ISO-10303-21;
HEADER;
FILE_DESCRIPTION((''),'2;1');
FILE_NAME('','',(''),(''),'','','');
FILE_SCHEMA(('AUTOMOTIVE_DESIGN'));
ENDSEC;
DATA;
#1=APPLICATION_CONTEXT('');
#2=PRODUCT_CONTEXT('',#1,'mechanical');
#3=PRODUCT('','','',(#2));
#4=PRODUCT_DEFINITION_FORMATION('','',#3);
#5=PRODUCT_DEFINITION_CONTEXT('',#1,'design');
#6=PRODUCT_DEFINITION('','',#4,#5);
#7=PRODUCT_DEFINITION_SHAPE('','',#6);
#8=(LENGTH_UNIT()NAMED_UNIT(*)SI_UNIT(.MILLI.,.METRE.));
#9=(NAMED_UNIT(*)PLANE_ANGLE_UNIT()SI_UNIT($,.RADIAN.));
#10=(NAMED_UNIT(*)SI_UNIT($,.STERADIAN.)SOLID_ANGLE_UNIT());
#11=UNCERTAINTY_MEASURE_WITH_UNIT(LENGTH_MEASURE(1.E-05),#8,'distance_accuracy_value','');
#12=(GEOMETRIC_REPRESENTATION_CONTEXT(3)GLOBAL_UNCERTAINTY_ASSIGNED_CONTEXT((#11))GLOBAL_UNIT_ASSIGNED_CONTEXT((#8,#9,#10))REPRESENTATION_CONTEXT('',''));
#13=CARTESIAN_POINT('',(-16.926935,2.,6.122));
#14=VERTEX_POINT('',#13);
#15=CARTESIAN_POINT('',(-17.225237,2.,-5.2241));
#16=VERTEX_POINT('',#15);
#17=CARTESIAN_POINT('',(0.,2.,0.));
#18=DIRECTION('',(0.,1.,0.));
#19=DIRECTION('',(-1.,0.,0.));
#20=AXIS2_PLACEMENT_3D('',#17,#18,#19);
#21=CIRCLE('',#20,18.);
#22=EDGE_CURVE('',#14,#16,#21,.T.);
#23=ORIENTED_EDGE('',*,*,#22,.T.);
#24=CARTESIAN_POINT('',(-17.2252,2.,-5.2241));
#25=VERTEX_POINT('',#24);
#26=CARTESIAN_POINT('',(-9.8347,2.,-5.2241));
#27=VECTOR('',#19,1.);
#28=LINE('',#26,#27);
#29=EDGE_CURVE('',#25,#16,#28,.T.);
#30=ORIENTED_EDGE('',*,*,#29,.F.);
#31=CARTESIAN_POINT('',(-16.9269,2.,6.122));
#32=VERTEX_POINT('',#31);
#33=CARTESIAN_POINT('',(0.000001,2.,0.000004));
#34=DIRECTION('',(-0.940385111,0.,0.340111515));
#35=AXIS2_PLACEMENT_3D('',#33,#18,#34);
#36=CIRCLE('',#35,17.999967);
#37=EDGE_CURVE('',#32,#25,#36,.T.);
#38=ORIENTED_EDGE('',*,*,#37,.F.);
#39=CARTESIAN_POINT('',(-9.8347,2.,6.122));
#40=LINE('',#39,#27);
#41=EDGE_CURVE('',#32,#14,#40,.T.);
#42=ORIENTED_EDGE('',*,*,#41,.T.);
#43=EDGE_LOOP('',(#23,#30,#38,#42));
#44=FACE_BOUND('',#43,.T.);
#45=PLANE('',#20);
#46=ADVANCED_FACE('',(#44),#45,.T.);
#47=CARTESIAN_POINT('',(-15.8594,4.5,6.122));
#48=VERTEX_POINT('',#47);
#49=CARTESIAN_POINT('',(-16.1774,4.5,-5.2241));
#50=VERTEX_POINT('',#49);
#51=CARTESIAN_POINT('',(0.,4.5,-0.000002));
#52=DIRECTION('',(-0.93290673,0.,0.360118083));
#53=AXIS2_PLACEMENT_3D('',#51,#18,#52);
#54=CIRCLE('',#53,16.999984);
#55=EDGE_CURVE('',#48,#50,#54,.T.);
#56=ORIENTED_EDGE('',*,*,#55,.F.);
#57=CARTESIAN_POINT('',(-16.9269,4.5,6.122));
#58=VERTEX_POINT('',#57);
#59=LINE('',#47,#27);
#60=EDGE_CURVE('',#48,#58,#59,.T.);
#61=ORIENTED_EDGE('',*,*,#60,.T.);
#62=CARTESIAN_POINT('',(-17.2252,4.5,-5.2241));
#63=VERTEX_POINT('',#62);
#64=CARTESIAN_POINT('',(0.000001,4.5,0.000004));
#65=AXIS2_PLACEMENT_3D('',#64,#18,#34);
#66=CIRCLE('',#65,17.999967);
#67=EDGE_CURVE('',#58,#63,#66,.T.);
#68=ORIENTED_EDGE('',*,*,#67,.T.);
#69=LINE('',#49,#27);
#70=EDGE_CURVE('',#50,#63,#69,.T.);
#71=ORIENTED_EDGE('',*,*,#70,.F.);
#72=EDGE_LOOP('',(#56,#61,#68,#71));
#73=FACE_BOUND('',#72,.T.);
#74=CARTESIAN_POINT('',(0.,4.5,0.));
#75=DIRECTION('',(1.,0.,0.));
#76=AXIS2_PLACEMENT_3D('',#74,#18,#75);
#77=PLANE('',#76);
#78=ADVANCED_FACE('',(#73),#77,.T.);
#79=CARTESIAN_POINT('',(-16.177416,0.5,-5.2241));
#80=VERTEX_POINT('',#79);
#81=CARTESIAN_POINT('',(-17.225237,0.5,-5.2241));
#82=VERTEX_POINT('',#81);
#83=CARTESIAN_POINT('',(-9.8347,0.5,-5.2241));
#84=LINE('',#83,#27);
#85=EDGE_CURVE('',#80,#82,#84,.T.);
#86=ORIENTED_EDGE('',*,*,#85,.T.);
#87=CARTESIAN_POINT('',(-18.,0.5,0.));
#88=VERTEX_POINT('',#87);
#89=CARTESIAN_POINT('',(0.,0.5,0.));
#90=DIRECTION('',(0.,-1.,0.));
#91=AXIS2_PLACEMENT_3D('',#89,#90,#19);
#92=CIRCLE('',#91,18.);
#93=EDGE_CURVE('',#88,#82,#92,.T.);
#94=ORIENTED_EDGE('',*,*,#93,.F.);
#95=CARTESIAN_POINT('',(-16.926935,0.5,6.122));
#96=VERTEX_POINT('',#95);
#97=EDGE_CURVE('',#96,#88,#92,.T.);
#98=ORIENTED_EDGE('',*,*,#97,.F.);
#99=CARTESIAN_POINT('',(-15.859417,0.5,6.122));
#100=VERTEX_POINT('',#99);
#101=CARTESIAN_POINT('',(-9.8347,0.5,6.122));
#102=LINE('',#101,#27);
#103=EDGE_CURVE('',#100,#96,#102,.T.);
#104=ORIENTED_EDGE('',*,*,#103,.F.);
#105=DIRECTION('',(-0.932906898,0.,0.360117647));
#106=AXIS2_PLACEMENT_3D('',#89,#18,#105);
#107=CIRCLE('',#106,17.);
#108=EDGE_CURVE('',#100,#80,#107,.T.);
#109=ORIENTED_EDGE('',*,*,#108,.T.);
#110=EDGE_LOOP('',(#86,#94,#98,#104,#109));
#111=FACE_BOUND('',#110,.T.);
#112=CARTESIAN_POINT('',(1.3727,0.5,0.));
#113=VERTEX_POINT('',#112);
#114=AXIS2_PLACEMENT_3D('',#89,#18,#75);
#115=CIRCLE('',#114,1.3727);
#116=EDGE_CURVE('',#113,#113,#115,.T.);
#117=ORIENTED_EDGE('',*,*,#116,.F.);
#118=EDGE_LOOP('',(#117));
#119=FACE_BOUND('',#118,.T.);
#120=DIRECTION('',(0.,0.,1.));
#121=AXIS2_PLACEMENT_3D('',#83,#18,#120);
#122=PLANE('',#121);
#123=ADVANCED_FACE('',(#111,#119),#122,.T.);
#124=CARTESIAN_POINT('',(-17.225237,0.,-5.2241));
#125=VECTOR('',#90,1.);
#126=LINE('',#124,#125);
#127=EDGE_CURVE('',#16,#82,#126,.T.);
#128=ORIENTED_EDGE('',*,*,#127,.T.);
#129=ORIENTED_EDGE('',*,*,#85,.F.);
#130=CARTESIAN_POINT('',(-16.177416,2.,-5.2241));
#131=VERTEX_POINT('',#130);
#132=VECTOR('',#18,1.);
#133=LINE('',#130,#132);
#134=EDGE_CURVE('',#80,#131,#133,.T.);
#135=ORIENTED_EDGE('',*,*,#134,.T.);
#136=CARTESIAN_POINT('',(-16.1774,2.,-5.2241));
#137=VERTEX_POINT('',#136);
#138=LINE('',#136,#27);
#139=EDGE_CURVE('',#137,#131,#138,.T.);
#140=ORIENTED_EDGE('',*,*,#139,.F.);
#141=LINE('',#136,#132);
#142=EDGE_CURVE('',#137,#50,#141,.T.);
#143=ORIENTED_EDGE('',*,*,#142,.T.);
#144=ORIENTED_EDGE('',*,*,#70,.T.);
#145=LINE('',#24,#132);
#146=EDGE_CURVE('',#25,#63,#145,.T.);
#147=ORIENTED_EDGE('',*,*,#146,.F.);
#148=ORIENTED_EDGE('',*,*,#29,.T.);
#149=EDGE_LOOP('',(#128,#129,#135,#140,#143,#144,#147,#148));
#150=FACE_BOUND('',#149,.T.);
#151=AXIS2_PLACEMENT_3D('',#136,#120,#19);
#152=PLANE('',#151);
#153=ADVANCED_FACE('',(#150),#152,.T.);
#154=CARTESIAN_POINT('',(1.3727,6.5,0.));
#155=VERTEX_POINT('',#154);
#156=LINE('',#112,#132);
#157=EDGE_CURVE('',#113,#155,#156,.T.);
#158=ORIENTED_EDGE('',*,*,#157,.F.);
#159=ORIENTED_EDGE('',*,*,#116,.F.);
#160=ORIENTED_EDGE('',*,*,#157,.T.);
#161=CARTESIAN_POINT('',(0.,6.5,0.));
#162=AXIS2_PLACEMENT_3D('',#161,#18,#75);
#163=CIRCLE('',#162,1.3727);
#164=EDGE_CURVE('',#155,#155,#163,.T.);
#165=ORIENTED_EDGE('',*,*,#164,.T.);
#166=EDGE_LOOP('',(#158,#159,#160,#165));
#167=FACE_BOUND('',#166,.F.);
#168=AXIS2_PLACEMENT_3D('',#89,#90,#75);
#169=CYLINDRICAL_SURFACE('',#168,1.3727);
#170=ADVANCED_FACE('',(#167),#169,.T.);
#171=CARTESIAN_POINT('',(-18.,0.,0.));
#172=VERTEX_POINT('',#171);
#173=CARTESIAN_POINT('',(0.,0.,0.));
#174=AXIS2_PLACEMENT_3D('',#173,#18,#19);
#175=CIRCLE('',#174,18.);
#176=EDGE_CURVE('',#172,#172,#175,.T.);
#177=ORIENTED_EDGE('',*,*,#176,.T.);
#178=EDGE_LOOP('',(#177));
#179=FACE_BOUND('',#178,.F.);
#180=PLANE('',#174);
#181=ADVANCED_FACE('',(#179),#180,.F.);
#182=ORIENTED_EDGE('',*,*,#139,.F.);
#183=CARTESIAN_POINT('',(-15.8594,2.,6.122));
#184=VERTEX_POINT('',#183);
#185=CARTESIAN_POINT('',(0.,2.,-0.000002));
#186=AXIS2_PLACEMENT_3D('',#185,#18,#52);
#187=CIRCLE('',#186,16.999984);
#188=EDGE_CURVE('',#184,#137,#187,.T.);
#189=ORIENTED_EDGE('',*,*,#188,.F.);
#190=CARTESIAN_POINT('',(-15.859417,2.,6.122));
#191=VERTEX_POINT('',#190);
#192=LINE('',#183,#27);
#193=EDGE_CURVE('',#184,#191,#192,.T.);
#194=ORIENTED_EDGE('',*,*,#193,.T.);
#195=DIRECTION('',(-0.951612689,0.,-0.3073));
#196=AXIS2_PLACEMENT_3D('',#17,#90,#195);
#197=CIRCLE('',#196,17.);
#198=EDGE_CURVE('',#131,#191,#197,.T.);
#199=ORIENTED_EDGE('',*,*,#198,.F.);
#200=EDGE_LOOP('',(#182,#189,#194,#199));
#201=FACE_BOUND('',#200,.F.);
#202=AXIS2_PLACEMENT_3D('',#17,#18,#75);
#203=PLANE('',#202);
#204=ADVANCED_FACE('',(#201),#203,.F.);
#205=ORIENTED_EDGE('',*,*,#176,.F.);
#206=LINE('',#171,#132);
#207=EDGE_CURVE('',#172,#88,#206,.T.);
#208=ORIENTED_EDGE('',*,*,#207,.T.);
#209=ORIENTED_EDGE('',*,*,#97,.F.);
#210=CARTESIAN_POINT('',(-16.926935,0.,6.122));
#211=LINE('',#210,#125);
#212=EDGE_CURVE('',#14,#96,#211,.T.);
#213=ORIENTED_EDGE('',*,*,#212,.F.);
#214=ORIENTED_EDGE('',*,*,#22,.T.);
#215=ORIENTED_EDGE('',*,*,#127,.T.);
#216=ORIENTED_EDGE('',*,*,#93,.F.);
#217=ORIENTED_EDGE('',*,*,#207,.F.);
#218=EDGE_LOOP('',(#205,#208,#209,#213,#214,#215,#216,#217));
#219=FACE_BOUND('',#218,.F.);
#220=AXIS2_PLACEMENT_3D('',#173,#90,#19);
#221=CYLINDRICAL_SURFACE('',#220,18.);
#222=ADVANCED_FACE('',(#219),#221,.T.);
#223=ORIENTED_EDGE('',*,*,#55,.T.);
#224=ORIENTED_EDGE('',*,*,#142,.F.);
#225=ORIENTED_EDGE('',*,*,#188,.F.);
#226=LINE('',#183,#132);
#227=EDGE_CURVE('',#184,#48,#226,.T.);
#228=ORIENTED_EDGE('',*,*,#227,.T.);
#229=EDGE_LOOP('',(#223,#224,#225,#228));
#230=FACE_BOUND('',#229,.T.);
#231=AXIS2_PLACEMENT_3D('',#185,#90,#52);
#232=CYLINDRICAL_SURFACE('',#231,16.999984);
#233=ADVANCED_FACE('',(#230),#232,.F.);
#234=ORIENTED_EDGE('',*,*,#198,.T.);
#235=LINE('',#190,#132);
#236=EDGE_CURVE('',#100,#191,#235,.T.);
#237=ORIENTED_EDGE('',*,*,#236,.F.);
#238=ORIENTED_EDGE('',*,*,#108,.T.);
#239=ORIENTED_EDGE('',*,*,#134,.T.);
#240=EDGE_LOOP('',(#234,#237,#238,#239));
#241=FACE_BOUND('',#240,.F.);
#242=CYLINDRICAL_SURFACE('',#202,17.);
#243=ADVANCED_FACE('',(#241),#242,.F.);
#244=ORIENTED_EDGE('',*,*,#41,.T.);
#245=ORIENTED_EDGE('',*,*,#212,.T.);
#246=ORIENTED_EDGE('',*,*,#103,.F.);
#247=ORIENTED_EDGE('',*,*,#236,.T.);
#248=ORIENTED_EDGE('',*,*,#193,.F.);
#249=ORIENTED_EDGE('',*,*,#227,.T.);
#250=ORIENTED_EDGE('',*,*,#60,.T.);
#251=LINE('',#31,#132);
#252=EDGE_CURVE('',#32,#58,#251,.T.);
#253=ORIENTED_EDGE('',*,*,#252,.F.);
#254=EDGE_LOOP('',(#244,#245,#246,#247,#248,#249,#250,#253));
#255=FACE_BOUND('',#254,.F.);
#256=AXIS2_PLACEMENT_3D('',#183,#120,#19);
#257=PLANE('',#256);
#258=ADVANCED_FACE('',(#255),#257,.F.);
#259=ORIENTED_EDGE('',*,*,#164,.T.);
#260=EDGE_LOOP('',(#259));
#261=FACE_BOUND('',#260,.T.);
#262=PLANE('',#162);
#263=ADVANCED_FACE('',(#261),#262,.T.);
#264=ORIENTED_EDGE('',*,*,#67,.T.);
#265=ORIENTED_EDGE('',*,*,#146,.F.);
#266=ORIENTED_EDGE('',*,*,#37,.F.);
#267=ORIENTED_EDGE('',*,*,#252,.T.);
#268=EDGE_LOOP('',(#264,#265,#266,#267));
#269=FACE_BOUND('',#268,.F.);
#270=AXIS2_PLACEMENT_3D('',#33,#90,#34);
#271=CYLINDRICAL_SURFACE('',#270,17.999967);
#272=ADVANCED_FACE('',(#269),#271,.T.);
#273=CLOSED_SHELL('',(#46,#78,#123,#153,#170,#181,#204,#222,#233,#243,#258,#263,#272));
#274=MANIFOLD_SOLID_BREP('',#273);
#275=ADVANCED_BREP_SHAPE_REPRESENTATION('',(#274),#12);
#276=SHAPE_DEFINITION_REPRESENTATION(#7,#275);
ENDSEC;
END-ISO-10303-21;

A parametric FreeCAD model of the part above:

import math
import FreeCAD as App
import Part
import Sketcher

V = App.Vector


def add_polygon(sketch, points):
    """Adds a closed chain of lines whose ends are joined by coincident constraints."""
    first, n = sketch.GeometryCount, len(points)
    for a, b in zip(points, points[1:] + points[:1]):
        sketch.addGeometry(Part.LineSegment(App.Vector(*a, 0), App.Vector(*b, 0)), False)
    for i in range(n):
        sketch.addConstraint(Sketcher.Constraint("Coincident", first + i, 2, first + (i + 1) % n, 1))

doc = App.newDocument("Part")
params = doc.addObject("Spreadsheet::Sheet", "Params")
for row, (alias, value) in enumerate([
    ("sketch1_diameter", "36 mm"),
    ("pad1_length", "2 mm"),
    ("sketch2_diameter", "34 mm"),
    ("pocket1_length", "1.5 mm"),
    ("sketch3_width", "1.5 mm"),
    ("pocket2_length", "15 mm"),
    ("sketch4_radius", "18 mm"),
    ("sketch4_radius2", "17 mm"),
    ("pad2_length", "2.5 mm"),
    ("pad3_length", "6 mm"),
], start=1):
    params.set(f"A{row}", alias)
    params.set(f"B{row}", "=" + value)
    params.setAlias(f"B{row}", alias)

body = doc.addObject("PartDesign::Body", "Body")

# Sketch on XZ plane
sketch1 = doc.addObject("Sketcher::SketchObject", "Sketch")
body.addObject(sketch1)
sketch1.AttachmentSupport = (doc.XZ_Plane, [""])
sketch1.MapMode = "FlatFace"
sketch1.addGeometry(Part.Circle(V(0, 0, 0), V(0, 0, 1), 18), False)
sketch1.addConstraint(Sketcher.Constraint("Coincident", 0, 3, -1, 1))
sketch1.addConstraint(Sketcher.Constraint("Diameter", 0, 36.0))
sketch1.setExpression("Constraints[1]", "Params.sketch1_diameter")
pad1 = doc.addObject("PartDesign::Pad", "Pad")
body.addObject(pad1)
pad1.Profile = sketch1
pad1.setExpression("Length", "Params.pad1_length")
pad1.Reversed = True

# Sketch on XZ plane
sketch2 = doc.addObject("Sketcher::SketchObject", "Sketch001")
body.addObject(sketch2)
sketch2.AttachmentSupport = (doc.XZ_Plane, [""])
sketch2.MapMode = "FlatFace"
sketch2.AttachmentOffset = App.Placement(V(0, 0, -2), App.Rotation())
sketch2.addGeometry(Part.Circle(V(0, 0, 0), V(0, 0, 1), 17), False)
sketch2.addConstraint(Sketcher.Constraint("Coincident", 0, 3, -1, 1))
sketch2.addConstraint(Sketcher.Constraint("Diameter", 0, 34.0))
sketch2.setExpression("Constraints[1]", "Params.sketch2_diameter")
pocket1 = doc.addObject("PartDesign::Pocket", "Pocket")
body.addObject(pocket1)
pocket1.Profile = sketch2
pocket1.setExpression("Length", "Params.pocket1_length")
pocket1.Reversed = True

# Sketch on YZ plane
sketch3 = doc.addObject("Sketcher::SketchObject", "Sketch002")
body.addObject(sketch3)
sketch3.AttachmentSupport = (doc.YZ_Plane, [""])
sketch3.MapMode = "FlatFace"
sketch3.AttachmentOffset = App.Placement(V(0, 0, -9.8347), App.Rotation())
add_polygon(sketch3, [(2, -5.2), (0.5, -5.2), (0.5, 6.1), (2, 6.1)])  # lines 0-3
sketch3.addConstraint(Sketcher.Constraint("Horizontal", 0))
sketch3.addConstraint(Sketcher.Constraint("Vertical", 1))
sketch3.addConstraint(Sketcher.Constraint("Horizontal", 2))
sketch3.addConstraint(Sketcher.Constraint("Vertical", 3))
sketch3.addConstraint(Sketcher.Constraint("DistanceX", 0, 2, 0, 1, 1.5))
sketch3.addConstraint(Sketcher.Constraint("DistanceX", -1, 1, 2, 2, 2.0))
sketch3.addConstraint(Sketcher.Constraint("DistanceY", 1, 1, 1, 2, 11.346))
sketch3.addConstraint(Sketcher.Constraint("DistanceY", 0, 2, -1, 1, 5.224))
sketch3.setExpression("Constraints[8]", "Params.sketch3_width")
pocket2 = doc.addObject("PartDesign::Pocket", "Pocket001")
body.addObject(pocket2)
pocket2.Profile = sketch3
pocket2.setExpression("Length", "Params.pocket2_length")

# Sketch on XZ plane
sketch4 = doc.addObject("Sketcher::SketchObject", "Sketch003")
body.addObject(sketch4)
sketch4.AttachmentSupport = (doc.XZ_Plane, [""])
sketch4.MapMode = "FlatFace"
sketch4.AttachmentOffset = App.Placement(V(0, 0, -2), App.Rotation())
sketch4.addGeometry(Part.LineSegment(V(-15.9, 6.1, 0), V(-16.9, 6.1, 0)), False)
sketch4.addGeometry(Part.ArcOfCircle(Part.Circle(V(0, 0, 0), V(0, 0, 1), 18), math.radians(-163), math.radians(160)), False)
sketch4.addGeometry(Part.LineSegment(V(-17.2, -5.2, 0), V(-16.2, -5.2, 0)), False)
sketch4.addGeometry(Part.ArcOfCircle(Part.Circle(V(0, 0, 0), V(0, 0, 1), 17), math.radians(-162), math.radians(159)), False)
sketch4.addConstraint(Sketcher.Constraint("Coincident", 0, 2, 1, 2))
sketch4.addConstraint(Sketcher.Constraint("Coincident", 1, 1, 2, 1))
sketch4.addConstraint(Sketcher.Constraint("Coincident", 2, 2, 3, 1))
sketch4.addConstraint(Sketcher.Constraint("Coincident", 3, 2, 0, 1))
sketch4.addConstraint(Sketcher.Constraint("Horizontal", 0))
sketch4.addConstraint(Sketcher.Constraint("Horizontal", 2))
sketch4.addConstraint(Sketcher.Constraint("Coincident", 1, 3, -1, 1))
sketch4.addConstraint(Sketcher.Constraint("Coincident", 3, 3, -1, 1))
sketch4.addConstraint(Sketcher.Constraint("Radius", 1, 18.0))
sketch4.addConstraint(Sketcher.Constraint("Radius", 3, 17.0))
sketch4.addConstraint(Sketcher.Constraint("DistanceX", 0, 2, 0, 1, 1.0675))
sketch4.addConstraint(Sketcher.Constraint("DistanceX", 2, 1, 2, 2, 1.0478))
sketch4.setExpression("Constraints[8]", "Params.sketch4_radius")
sketch4.setExpression("Constraints[9]", "Params.sketch4_radius2")
pad2 = doc.addObject("PartDesign::Pad", "Pad001")
body.addObject(pad2)
pad2.Profile = sketch4
pad2.setExpression("Length", "Params.pad2_length")
pad2.Reversed = True

# Sketch on XZ plane
sketch5 = doc.addObject("Sketcher::SketchObject", "Sketch004")
body.addObject(sketch5)
sketch5.AttachmentSupport = (doc.XZ_Plane, [""])
sketch5.MapMode = "FlatFace"
sketch5.AttachmentOffset = App.Placement(V(0, 0, -0.5), App.Rotation())
sketch5.addGeometry(Part.Circle(V(0, 0, 0), V(0, 0, 1), 1.4), False)
sketch5.addConstraint(Sketcher.Constraint("Coincident", 0, 3, -1, 1))
sketch5.addConstraint(Sketcher.Constraint("Diameter", 0, 2.7454))
pad3 = doc.addObject("PartDesign::Pad", "Pad002")
body.addObject(pad3)
pad3.Profile = sketch5
pad3.setExpression("Length", "Params.pad3_length")
pad3.Reversed = True

doc.recompute()
